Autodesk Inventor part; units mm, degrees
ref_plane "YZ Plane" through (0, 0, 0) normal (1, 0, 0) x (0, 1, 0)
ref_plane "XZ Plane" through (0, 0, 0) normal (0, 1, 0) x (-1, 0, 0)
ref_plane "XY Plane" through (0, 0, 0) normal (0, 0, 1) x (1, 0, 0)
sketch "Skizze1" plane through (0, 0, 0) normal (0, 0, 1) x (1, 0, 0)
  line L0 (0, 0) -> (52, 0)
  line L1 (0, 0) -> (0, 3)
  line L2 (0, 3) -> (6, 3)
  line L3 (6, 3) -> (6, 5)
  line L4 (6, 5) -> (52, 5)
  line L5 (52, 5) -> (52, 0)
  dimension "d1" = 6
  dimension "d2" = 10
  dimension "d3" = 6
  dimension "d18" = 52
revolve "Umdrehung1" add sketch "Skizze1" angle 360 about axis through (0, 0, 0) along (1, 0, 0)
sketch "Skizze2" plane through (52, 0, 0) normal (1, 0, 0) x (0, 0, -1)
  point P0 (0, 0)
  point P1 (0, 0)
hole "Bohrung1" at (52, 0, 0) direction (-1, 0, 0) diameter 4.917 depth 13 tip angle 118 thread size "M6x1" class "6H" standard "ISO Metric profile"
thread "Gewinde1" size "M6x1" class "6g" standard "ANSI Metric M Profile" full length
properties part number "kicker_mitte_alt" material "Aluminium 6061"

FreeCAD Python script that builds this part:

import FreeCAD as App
import Part
import Sketcher

doc = App.newDocument("Part")
body = doc.addObject("PartDesign::Body", "Body")

sketch1 = body.newObject("Sketcher::SketchObject", "Sketch")
sketch1.AttachmentSupport = (doc.getObject("XY_Plane"), [""])
sketch1.MapMode = "FlatFace"
sketch1.addGeometry(Part.LineSegment(App.Vector(0, 3, 0), App.Vector(0, 0, 0)), False)
sketch1.addGeometry(Part.LineSegment(App.Vector(0, 0, 0), App.Vector(52, 0, 0)), False)
sketch1.addGeometry(Part.LineSegment(App.Vector(52, 0, 0), App.Vector(52, 5, 0)), False)
sketch1.addGeometry(Part.LineSegment(App.Vector(52, 5, 0), App.Vector(6, 5, 0)), False)
sketch1.addGeometry(Part.LineSegment(App.Vector(6, 5, 0), App.Vector(6, 3, 0)), False)
sketch1.addGeometry(Part.LineSegment(App.Vector(6, 3, 0), App.Vector(0, 3, 0)), False)
sketch1.addConstraint(Sketcher.Constraint("Coincident", 0, 2, 1, 1))
sketch1.addConstraint(Sketcher.Constraint("Coincident", 1, 2, 2, 1))
sketch1.addConstraint(Sketcher.Constraint("Coincident", 2, 2, 3, 1))
sketch1.addConstraint(Sketcher.Constraint("Coincident", 3, 2, 4, 1))
sketch1.addConstraint(Sketcher.Constraint("Coincident", 4, 2, 5, 1))
sketch1.addConstraint(Sketcher.Constraint("Coincident", 5, 2, 0, 1))
sketch1.addConstraint(Sketcher.Constraint("Vertical", 0))
sketch1.addConstraint(Sketcher.Constraint("Horizontal", 1))
sketch1.addConstraint(Sketcher.Constraint("Vertical", 2))
sketch1.addConstraint(Sketcher.Constraint("Horizontal", 3))
sketch1.addConstraint(Sketcher.Constraint("Vertical", 4))
sketch1.addConstraint(Sketcher.Constraint("Horizontal", 5))
sketch1.addConstraint(Sketcher.Constraint("Coincident", 0, 2, -1, 1))
sketch1.addConstraint(Sketcher.Constraint("DistanceX", 1, 1, 1, 2, 52.0))
sketch1.addConstraint(Sketcher.Constraint("DistanceX", 5, 2, 5, 1, 6.0))
sketch1.addConstraint(Sketcher.Constraint("DistanceY", 0, 2, 0, 1, 3.0))
sketch1.addConstraint(Sketcher.Constraint("DistanceY", 2, 1, 2, 2, 5.0))
revolution = body.newObject("PartDesign::Revolution", "Revolution")
revolution.Profile = sketch1
revolution.ReferenceAxis = (sketch1, ["H_Axis"])
revolution.Angle = 360

sketch2 = body.newObject("Sketcher::SketchObject", "Sketch001")
sketch2.AttachmentSupport = (doc.getObject("YZ_Plane"), [""])
sketch2.MapMode = "FlatFace"
sketch2.AttachmentOffset = App.Placement(App.Vector(0, 0, 52), App.Rotation())
sketch2.addGeometry(Part.Circle(App.Vector(0, 0, 0), App.Vector(0, 0, 1), 2.5), False)
sketch2.addConstraint(Sketcher.Constraint("Coincident", 0, 3, -1, 1))
sketch2.addConstraint(Sketcher.Constraint("Diameter", 0, 4.917))
doc.recompute()
hole = body.newObject("PartDesign::Hole", "Hole")
hole.Profile = sketch2
hole.ThreadType = "None"
hole.Diameter = 4.917
hole.DepthType = "Dimension"
hole.Depth = 13
hole.DrillPoint = "Angled"
hole.DrillPointAngle = 118

doc.recompute()
